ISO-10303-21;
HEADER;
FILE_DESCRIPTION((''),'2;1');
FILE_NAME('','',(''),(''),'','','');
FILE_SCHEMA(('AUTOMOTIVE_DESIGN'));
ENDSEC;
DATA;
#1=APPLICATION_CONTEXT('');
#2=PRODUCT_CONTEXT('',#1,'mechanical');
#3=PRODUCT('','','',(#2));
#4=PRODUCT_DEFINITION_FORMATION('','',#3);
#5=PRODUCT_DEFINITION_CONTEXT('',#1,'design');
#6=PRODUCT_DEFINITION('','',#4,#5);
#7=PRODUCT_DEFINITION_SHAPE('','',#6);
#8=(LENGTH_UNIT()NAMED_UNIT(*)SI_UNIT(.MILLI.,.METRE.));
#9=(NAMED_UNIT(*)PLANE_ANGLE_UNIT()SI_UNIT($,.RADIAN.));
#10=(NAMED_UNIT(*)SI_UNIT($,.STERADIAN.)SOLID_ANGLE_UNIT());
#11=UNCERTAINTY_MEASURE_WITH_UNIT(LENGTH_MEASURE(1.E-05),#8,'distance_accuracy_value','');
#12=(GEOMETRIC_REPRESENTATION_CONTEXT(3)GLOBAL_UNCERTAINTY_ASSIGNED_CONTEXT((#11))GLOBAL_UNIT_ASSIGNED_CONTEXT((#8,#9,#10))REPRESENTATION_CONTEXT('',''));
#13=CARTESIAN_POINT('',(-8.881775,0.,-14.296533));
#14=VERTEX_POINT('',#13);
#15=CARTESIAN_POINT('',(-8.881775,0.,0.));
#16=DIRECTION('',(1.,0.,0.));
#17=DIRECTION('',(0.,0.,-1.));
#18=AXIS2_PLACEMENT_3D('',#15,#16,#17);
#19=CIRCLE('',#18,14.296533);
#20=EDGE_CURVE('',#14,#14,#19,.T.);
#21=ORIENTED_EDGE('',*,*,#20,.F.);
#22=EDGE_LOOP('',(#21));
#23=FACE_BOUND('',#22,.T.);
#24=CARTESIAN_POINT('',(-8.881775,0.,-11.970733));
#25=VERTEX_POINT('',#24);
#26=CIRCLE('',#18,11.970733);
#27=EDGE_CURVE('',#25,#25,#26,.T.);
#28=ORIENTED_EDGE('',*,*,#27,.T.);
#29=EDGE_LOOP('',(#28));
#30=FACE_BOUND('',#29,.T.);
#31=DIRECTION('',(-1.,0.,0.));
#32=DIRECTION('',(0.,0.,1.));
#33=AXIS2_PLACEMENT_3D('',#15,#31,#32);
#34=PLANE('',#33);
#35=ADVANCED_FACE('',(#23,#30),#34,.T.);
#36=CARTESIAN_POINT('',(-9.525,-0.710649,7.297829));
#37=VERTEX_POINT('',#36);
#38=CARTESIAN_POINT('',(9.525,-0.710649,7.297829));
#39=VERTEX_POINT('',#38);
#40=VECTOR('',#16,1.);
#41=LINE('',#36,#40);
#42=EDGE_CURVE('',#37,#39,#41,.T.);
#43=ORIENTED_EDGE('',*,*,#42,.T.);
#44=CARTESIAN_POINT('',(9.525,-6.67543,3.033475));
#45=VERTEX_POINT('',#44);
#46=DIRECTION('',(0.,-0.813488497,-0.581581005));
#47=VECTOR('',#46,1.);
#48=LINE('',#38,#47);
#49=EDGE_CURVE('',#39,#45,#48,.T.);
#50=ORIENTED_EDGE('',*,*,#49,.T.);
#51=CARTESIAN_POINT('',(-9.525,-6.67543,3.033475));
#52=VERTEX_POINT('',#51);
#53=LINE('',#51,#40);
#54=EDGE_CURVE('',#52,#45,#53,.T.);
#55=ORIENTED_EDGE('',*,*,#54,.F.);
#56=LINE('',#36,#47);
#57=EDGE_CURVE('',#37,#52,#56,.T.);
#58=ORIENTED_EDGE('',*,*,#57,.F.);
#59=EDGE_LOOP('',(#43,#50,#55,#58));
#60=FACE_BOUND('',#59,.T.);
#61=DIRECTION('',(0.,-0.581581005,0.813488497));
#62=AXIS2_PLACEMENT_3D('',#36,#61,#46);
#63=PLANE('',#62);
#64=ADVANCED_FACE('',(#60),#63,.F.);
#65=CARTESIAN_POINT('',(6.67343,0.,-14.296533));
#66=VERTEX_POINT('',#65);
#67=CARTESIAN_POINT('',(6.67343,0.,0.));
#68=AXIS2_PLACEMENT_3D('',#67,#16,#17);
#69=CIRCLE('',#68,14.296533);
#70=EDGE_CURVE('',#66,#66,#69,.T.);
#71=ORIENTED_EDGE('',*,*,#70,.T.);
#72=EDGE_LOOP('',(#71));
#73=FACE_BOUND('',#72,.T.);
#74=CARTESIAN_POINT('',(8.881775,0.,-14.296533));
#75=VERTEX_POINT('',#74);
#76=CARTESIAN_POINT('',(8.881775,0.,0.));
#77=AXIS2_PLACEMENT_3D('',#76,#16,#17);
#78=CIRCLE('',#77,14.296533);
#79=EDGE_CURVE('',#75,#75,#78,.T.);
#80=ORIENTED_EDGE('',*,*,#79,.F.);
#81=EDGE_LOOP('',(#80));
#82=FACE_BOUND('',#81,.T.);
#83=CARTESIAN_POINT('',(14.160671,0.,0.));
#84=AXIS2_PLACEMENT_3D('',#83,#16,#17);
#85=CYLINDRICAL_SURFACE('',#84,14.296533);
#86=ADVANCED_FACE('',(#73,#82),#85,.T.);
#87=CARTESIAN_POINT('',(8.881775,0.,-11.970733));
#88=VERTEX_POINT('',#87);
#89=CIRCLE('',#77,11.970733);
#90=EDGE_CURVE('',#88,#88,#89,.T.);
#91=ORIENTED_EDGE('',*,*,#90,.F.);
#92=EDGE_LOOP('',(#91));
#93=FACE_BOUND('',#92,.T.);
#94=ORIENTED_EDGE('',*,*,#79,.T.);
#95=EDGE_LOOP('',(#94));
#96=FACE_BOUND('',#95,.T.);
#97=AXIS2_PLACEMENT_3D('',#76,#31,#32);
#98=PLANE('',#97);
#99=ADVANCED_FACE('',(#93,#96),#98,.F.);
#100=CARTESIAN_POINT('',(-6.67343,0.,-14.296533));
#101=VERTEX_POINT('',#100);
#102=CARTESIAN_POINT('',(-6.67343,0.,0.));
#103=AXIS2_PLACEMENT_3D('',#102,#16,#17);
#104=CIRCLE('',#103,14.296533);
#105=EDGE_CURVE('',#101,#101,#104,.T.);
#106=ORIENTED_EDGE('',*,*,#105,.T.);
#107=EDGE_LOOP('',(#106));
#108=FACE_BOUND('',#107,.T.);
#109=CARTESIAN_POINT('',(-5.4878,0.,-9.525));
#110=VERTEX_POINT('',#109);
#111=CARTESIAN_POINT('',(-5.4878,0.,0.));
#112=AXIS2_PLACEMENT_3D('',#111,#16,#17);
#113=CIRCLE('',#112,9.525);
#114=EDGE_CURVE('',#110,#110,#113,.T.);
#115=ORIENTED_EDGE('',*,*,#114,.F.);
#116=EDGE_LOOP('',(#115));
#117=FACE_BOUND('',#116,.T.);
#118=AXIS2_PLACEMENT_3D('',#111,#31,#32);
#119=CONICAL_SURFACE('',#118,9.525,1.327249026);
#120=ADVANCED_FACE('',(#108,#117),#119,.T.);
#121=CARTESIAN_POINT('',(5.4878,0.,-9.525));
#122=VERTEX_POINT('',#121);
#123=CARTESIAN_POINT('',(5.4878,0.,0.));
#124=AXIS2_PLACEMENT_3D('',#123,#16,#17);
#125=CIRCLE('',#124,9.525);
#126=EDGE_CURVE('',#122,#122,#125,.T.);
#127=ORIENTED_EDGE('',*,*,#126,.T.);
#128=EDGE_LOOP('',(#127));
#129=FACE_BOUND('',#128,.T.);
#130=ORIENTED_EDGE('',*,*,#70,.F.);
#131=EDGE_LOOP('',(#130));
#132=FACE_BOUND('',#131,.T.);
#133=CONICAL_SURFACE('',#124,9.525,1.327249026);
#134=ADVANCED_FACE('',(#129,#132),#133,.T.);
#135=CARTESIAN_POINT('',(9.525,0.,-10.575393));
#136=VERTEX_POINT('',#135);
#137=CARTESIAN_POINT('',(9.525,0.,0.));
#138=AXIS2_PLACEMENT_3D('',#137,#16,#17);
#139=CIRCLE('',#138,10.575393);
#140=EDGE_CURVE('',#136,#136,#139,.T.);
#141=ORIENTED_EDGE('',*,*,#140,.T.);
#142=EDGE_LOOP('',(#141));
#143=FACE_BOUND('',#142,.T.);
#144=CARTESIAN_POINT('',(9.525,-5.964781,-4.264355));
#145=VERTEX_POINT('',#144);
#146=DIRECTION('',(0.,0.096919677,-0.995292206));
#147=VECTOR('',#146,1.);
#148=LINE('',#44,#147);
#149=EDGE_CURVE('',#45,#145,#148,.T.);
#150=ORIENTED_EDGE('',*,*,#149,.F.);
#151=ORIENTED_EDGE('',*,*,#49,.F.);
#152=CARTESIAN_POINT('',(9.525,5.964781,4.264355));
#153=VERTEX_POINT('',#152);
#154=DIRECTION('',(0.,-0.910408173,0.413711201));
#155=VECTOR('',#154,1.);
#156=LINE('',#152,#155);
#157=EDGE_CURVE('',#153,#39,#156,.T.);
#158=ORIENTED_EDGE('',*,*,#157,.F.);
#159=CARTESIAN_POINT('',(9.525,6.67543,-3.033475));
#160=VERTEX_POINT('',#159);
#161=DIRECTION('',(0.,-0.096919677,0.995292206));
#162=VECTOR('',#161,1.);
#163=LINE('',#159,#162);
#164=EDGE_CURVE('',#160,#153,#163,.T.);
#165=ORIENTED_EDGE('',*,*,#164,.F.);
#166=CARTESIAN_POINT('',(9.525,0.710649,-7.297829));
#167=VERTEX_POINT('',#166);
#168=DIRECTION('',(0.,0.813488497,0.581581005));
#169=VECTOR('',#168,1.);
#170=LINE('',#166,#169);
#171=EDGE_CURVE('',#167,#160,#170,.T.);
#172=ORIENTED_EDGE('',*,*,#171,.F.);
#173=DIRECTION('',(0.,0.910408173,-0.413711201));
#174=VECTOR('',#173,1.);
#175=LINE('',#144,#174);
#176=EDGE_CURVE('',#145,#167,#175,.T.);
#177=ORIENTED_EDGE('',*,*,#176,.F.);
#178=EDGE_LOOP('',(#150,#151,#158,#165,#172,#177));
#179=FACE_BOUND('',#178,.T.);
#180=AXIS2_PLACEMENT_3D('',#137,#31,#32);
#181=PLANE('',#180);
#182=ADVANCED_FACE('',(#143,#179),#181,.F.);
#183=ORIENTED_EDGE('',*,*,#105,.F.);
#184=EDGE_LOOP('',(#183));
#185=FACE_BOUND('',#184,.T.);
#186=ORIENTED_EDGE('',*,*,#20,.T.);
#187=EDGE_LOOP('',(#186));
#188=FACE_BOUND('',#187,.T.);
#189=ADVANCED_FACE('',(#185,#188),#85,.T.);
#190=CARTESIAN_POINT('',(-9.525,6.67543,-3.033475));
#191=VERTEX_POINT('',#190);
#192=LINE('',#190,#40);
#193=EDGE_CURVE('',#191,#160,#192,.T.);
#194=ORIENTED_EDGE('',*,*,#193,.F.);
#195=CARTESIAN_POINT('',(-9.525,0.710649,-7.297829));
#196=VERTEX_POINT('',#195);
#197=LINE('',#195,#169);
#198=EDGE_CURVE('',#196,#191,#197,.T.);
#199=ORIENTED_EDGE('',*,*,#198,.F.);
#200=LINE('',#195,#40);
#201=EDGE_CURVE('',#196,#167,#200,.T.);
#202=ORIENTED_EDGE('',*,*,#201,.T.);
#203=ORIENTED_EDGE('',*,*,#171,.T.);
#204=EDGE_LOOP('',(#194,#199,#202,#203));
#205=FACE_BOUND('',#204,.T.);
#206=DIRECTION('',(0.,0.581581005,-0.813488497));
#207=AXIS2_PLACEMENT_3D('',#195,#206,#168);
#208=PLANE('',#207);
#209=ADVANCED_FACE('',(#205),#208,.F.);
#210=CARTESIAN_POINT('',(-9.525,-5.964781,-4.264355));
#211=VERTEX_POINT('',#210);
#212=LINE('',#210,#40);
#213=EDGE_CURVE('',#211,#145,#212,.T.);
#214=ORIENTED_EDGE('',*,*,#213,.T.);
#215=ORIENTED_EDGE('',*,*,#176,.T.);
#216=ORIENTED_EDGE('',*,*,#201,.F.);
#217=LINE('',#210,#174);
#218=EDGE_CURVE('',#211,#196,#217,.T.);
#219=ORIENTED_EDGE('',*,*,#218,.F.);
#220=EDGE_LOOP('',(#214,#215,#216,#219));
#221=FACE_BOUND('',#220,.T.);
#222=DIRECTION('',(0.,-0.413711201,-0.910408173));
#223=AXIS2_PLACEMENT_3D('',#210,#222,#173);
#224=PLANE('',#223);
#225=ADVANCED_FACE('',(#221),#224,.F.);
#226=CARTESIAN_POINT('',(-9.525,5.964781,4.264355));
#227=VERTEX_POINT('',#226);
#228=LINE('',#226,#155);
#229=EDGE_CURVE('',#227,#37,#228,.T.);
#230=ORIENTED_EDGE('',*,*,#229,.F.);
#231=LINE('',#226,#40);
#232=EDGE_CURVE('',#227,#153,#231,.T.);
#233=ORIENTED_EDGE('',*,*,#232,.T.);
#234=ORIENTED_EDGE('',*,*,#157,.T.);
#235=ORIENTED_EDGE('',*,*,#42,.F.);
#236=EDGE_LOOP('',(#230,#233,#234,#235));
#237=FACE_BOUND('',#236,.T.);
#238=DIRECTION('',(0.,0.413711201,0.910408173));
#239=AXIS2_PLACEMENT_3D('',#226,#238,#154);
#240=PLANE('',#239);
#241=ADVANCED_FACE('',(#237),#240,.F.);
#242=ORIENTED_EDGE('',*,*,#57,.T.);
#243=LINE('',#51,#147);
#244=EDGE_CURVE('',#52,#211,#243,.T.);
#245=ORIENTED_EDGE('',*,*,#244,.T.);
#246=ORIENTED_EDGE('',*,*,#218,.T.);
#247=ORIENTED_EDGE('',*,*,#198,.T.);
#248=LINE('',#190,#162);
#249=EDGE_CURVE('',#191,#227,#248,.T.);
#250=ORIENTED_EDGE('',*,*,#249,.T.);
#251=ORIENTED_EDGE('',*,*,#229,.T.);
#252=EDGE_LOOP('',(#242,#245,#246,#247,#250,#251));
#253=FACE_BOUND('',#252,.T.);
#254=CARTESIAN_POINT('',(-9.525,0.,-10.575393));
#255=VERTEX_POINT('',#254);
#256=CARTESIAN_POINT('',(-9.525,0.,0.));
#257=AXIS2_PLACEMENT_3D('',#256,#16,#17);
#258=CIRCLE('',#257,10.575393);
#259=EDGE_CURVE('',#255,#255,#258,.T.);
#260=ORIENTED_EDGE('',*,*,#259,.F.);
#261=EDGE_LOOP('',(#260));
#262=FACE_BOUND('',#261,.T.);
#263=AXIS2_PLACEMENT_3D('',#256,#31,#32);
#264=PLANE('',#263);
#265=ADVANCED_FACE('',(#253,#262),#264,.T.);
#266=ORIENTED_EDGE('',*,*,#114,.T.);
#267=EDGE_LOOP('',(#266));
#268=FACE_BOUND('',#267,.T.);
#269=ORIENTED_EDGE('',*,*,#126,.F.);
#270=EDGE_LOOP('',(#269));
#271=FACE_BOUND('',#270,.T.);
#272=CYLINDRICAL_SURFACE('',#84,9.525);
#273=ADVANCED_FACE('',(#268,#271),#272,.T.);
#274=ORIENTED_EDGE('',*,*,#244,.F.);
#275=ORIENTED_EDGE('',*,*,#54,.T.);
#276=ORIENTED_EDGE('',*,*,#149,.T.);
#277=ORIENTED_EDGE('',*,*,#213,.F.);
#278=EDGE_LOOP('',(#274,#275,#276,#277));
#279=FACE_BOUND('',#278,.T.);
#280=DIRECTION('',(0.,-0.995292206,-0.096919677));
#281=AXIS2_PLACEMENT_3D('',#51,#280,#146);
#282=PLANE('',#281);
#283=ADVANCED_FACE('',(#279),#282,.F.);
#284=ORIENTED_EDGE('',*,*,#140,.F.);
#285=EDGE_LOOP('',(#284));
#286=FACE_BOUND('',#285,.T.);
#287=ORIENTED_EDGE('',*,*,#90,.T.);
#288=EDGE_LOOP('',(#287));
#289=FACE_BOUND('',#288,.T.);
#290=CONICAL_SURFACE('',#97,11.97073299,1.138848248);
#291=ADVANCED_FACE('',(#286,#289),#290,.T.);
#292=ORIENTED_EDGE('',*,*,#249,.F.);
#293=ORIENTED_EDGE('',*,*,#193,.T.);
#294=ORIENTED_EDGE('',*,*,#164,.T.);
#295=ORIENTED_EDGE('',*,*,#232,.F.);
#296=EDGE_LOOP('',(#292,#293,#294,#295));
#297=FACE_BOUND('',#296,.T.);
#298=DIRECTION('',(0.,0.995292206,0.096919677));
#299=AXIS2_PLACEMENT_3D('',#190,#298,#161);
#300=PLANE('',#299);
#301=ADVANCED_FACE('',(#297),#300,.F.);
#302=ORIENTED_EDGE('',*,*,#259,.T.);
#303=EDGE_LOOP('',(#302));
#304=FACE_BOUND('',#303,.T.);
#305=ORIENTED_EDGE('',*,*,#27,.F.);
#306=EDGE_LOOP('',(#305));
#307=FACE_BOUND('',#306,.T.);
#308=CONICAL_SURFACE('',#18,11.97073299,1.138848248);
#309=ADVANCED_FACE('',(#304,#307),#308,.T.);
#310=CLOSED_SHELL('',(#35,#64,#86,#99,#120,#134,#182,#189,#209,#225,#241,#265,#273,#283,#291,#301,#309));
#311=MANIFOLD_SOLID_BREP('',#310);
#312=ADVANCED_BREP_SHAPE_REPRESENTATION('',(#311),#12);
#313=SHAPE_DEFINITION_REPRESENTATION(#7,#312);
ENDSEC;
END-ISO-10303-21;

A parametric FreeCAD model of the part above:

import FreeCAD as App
import Part
import Sketcher
from FreeCAD import Vector
Q = App.Units.Quantity

doc = App.newDocument("Part")
body = doc.addObject("PartDesign::Body", "Body")

# Sketch on XY plane
sketch1 = body.newObject("Sketcher::SketchObject", "Sketch")
sketch1.AttachmentSupport = (doc.getObject("XY_Plane"), [""])
sketch1.MapMode = "FlatFace"
sketch1.addGeometry([
    Part.LineSegment(Vector(9.5, 0, 0), Vector(9.5, 10.6, 0)),  # 0
    Part.LineSegment(Vector(9.5, 10.6, 0), Vector(8.9, 12, 0)),  # 1
    Part.LineSegment(Vector(8.9, 12, 0), Vector(8.9, 14.3, 0)),  # 2
    Part.LineSegment(Vector(8.9, 14.3, 0), Vector(6.7, 14.3, 0)),  # 3
    Part.LineSegment(Vector(6.7, 14.3, 0), Vector(5.5, 9.5, 0)),  # 4
    Part.LineSegment(Vector(5.5, 9.5, 0), Vector(-5.5, 9.5, 0)),  # 5
    Part.LineSegment(Vector(-5.5, 9.5, 0), Vector(-6.7, 14.3, 0)),  # 6
    Part.LineSegment(Vector(-6.7, 14.3, 0), Vector(-8.9, 14.3, 0)),  # 7
    Part.LineSegment(Vector(-8.9, 14.3, 0), Vector(-8.9, 12, 0)),  # 8
    Part.LineSegment(Vector(-8.9, 12, 0), Vector(-9.5, 10.6, 0)),  # 9
    Part.LineSegment(Vector(-9.5, 10.6, 0), Vector(-9.5, 0, 0)),  # 10
    Part.LineSegment(Vector(-9.5, 0, 0), Vector(9.5, 0, 0)),  # 11
], False)
sketch1.addConstraint([
    Sketcher.Constraint("Coincident", 0, 2, 1, 1),
    Sketcher.Constraint("Coincident", 1, 2, 2, 1),
    Sketcher.Constraint("Coincident", 2, 2, 3, 1),
    Sketcher.Constraint("Coincident", 3, 2, 4, 1),
    Sketcher.Constraint("Coincident", 4, 2, 5, 1),
    Sketcher.Constraint("Coincident", 5, 2, 6, 1),
    Sketcher.Constraint("Coincident", 6, 2, 7, 1),
    Sketcher.Constraint("Coincident", 7, 2, 8, 1),
    Sketcher.Constraint("Coincident", 8, 2, 9, 1),
    Sketcher.Constraint("Coincident", 9, 2, 10, 1),
    Sketcher.Constraint("Coincident", 10, 2, 11, 1),
    Sketcher.Constraint("Coincident", 11, 2, 0, 1),
    Sketcher.Constraint("Vertical", 0),
    Sketcher.Constraint("Vertical", 2),
    Sketcher.Constraint("Horizontal", 3),
    Sketcher.Constraint("Horizontal", 5),
    Sketcher.Constraint("Horizontal", 7),
    Sketcher.Constraint("Vertical", 8),
    Sketcher.Constraint("Vertical", 10),
    Sketcher.Constraint("Horizontal", 11),
    Sketcher.Constraint("Symmetric", 10, 2, 11, 2, -1, 1),
    Sketcher.Constraint("Symmetric", 3, 2, 6, 2, -2),
    Sketcher.Constraint("Symmetric", 1, 2, 8, 2, -2),
    Sketcher.Constraint("Horizontal", 0, 2, 9, 2),
    Sketcher.Constraint("Equal", 4, 6),
    Sketcher.Constraint("DistanceX", 11, 1, 11, 2, Q("0.75 in")),
    Sketcher.Constraint("DistanceY", -1, 1, 4, 2, Q("0.375 in")),
    Sketcher.Constraint("DistanceX", 5, 2, 5, 1, 10.975601),
    Sketcher.Constraint("DistanceY", 2, 1, 2, 2, 2.3258),
    Sketcher.Constraint("Distance", 1, 1.536461),
    Sketcher.Constraint("Distance", 4, 4.916629),
    Sketcher.Constraint("DistanceX", 3, 2, 3, 1, 2.208345),
    Sketcher.Constraint("DistanceY", 0, 1, 0, 2, 10.575393),
])
revolution = body.newObject("PartDesign::Revolution", "Revolution")
revolution.Profile = sketch1
revolution.ReferenceAxis = (sketch1, ["H_Axis"])
revolution.Angle = 360

# Sketch on YZ plane
sketch2 = body.newObject("Sketcher::SketchObject", "Sketch001")
sketch2.AttachmentSupport = (doc.getObject("YZ_Plane"), [""])
sketch2.MapMode = "FlatFace"
sketch2.AttachmentOffset = App.Placement(Vector(0, 0, 0.375 * 25.4), App.Rotation())
sketch2.addGeometry([
    Part.LineSegment(Vector(-6, -4, 0), Vector(1, -7, 0)),  # 0
    Part.LineSegment(Vector(1, -7, 0), Vector(7, -3, 0)),  # 1
    Part.LineSegment(Vector(7, -3, 0), Vector(6, 4, 0)),  # 2
    Part.LineSegment(Vector(6, 4, 0), Vector(-1, 7, 0)),  # 3
    Part.LineSegment(Vector(-1, 7, 0), Vector(-7, 3, 0)),  # 4
    Part.LineSegment(Vector(-7, 3, 0), Vector(-6, -4, 0)),  # 5
], False)
sketch2.addConstraint([
    Sketcher.Constraint("Coincident", 0, 2, 1, 1),
    Sketcher.Constraint("Coincident", 1, 2, 2, 1),
    Sketcher.Constraint("Coincident", 2, 2, 3, 1),
    Sketcher.Constraint("Coincident", 3, 2, 4, 1),
    Sketcher.Constraint("Coincident", 4, 2, 5, 1),
    Sketcher.Constraint("Coincident", 5, 2, 0, 1),
    Sketcher.Constraint("Symmetric", 0, 2, 3, 2, -1, 1),
    Sketcher.Constraint("Symmetric", 1, 2, 4, 2, -1, 1),
    Sketcher.Constraint("Symmetric", 2, 2, 5, 2, -1, 1),
    Sketcher.Constraint("Equal", 0, 1),
    Sketcher.Constraint("Equal", 1, 2),
    Sketcher.Constraint("Distance", 0, 7.332348),
    Sketcher.Constraint("DistanceX", -1, 1, 0, 2, 0.710649),
    Sketcher.Constraint("DistanceY", 0, 2, -1, 1, 7.297829),
    Sketcher.Constraint("DistanceX", -1, 1, 1, 2, 6.67543),
])
pocket1 = body.newObject("PartDesign::Pocket", "Pocket")
pocket1.Profile = sketch2
pocket1.Type = "ThroughAll"

doc.recompute()
